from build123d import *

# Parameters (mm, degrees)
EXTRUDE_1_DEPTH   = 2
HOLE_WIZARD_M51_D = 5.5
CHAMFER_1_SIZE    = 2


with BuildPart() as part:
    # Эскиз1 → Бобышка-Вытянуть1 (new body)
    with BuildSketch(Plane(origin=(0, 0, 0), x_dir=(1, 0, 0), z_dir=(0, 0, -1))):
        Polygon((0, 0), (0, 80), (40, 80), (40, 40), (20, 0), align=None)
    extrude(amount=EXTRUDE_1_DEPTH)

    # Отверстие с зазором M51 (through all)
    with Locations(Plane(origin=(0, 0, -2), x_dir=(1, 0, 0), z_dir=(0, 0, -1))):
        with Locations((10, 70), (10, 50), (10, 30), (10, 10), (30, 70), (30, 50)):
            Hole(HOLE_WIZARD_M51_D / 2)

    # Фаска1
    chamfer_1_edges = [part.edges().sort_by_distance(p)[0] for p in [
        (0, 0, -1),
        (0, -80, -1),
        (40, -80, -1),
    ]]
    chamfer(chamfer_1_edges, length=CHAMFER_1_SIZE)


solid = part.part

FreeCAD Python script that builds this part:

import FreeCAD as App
import Part
import Sketcher
from FreeCAD import Vector


def edges_at(feature, points):
    """Names of the edges that pass closest to the given points."""
    edges = feature.Shape.Edges
    near = lambda p: min(range(len(edges)), key=lambda i: edges[i].distToShape(Part.Vertex(*p))[0])
    return sorted({f"Edge{near(p) + 1}" for p in points})

doc = App.newDocument("Part")
params = doc.addObject("Spreadsheet::Sheet", "Params")
for row, (alias, value) in enumerate([
    ("sketch1_width", "20 mm"),
    ("sketch1_width2", "40 mm"),
    ("sketch1_height", "80 mm"),
    ("pad1_length", "2 mm"),
    ("sketch2_diameter", "5.5 mm"),
    ("hole_diameter", "5.5 mm"),
    ("chamfer_size", "2 mm"),
], start=1):
    params.set(f"A{row}", alias)
    params.set(f"B{row}", "=" + value)
    params.setAlias(f"B{row}", alias)

body = doc.addObject("PartDesign::Body", "Body")

sketch1 = body.newObject("Sketcher::SketchObject", "Sketch")
sketch1.AttachmentSupport = (doc.getObject("XY_Plane"), [""])
sketch1.MapMode = "FlatFace"
sketch1.addGeometry([
    Part.LineSegment(Vector(0, -80, 0), Vector(0, 0, 0)),
    Part.LineSegment(Vector(0, 0, 0), Vector(20, 0, 0)),
    Part.LineSegment(Vector(20, 0, 0), Vector(40, -40, 0)),
    Part.LineSegment(Vector(40, -40, 0), Vector(40, -80, 0)),
    Part.LineSegment(Vector(40, -80, 0), Vector(0, -80, 0)),
], False)
sketch1.addConstraint([
    Sketcher.Constraint("Coincident", 0, 2, 1, 1),
    Sketcher.Constraint("Coincident", 1, 2, 2, 1),
    Sketcher.Constraint("Coincident", 2, 2, 3, 1),
    Sketcher.Constraint("Coincident", 3, 2, 4, 1),
    Sketcher.Constraint("Coincident", 4, 2, 0, 1),
    Sketcher.Constraint("Vertical", 0),
    Sketcher.Constraint("Horizontal", 1),
    Sketcher.Constraint("Vertical", 3),
    Sketcher.Constraint("Horizontal", 4),
    Sketcher.Constraint("Coincident", 0, 2, -1, 1),
    Sketcher.Constraint("Equal", 4, 3),
    Sketcher.Constraint("DistanceX", 1, 1, 1, 2, 20.0),
    Sketcher.Constraint("DistanceX", 4, 2, 4, 1, 40.0),
    Sketcher.Constraint("DistanceY", 0, 1, 0, 2, 80.0),
])
sketch1.setExpression("Constraints[11]", "Params.sketch1_width")
sketch1.setExpression("Constraints[12]", "Params.sketch1_width2")
sketch1.setExpression("Constraints[13]", "Params.sketch1_height")
pad1 = body.newObject("PartDesign::Pad", "Pad")
pad1.Profile = sketch1
pad1.setExpression("Length", "Params.pad1_length")
pad1.Reversed = True

sketch2 = body.newObject("Sketcher::SketchObject", "Sketch001")
sketch2.AttachmentSupport = (doc.getObject("XY_Plane"), [""])
sketch2.MapMode = "FlatFace"
sketch2.AttachmentOffset = App.Placement(Vector(0, 0, -2), App.Rotation())
sketch2.addGeometry([
    Part.Circle(Vector(10, -70, 0), Vector(0, 0, 1), 2.8),
    Part.Circle(Vector(10, -50, 0), Vector(0, 0, 1), 2.8),
    Part.Circle(Vector(10, -30, 0), Vector(0, 0, 1), 2.8),
    Part.Circle(Vector(10, -10, 0), Vector(0, 0, 1), 2.8),
    Part.Circle(Vector(30, -70, 0), Vector(0, 0, 1), 2.8),
    Part.Circle(Vector(30, -50, 0), Vector(0, 0, 1), 2.8),
], False)
sketch2.addConstraint([
    Sketcher.Constraint("Equal", 0, 1),
    Sketcher.Constraint("Equal", 1, 2),
    Sketcher.Constraint("Equal", 2, 3),
    Sketcher.Constraint("Equal", 3, 4),
    Sketcher.Constraint("Equal", 4, 5),
    Sketcher.Constraint("Horizontal", 0, 3, 4, 3),
    Sketcher.Constraint("Horizontal", 1, 3, 5, 3),
    Sketcher.Constraint("Vertical", 0, 3, 1, 3),
    Sketcher.Constraint("Vertical", 1, 3, 2, 3),
    Sketcher.Constraint("Vertical", 2, 3, 3, 3),
    Sketcher.Constraint("Vertical", 4, 3, 5, 3),
    Sketcher.Constraint("Diameter", 0, 5.5),
    Sketcher.Constraint("DistanceX", -1, 1, 0, 3, 10.0),
    Sketcher.Constraint("DistanceY", 0, 3, -1, 1, 70.0),
    Sketcher.Constraint("DistanceY", 1, 3, -1, 1, 50.0),
    Sketcher.Constraint("DistanceY", 2, 3, -1, 1, 30.0),
    Sketcher.Constraint("DistanceY", 3, 3, -1, 1, 10.0),
    Sketcher.Constraint("DistanceX", -1, 1, 4, 3, 30.0),
])
sketch2.setExpression("Constraints[11]", "Params.sketch2_diameter")
doc.recompute()
hole = body.newObject("PartDesign::Hole", "Hole")
hole.Profile = sketch2
hole.ThreadType = "None"
hole.setExpression("Diameter", "Params.hole_diameter")
hole.DepthType = "ThroughAll"
hole.Reversed = True
doc.recompute()

chamfer = body.newObject("PartDesign::Chamfer", "Chamfer")
chamfer.Base = (hole, edges_at(hole, [(0, 0, -1), (0, -80, -1), (40, -80, -1)]))
chamfer.setExpression("Size", "Params.chamfer_size")

doc.recompute()
